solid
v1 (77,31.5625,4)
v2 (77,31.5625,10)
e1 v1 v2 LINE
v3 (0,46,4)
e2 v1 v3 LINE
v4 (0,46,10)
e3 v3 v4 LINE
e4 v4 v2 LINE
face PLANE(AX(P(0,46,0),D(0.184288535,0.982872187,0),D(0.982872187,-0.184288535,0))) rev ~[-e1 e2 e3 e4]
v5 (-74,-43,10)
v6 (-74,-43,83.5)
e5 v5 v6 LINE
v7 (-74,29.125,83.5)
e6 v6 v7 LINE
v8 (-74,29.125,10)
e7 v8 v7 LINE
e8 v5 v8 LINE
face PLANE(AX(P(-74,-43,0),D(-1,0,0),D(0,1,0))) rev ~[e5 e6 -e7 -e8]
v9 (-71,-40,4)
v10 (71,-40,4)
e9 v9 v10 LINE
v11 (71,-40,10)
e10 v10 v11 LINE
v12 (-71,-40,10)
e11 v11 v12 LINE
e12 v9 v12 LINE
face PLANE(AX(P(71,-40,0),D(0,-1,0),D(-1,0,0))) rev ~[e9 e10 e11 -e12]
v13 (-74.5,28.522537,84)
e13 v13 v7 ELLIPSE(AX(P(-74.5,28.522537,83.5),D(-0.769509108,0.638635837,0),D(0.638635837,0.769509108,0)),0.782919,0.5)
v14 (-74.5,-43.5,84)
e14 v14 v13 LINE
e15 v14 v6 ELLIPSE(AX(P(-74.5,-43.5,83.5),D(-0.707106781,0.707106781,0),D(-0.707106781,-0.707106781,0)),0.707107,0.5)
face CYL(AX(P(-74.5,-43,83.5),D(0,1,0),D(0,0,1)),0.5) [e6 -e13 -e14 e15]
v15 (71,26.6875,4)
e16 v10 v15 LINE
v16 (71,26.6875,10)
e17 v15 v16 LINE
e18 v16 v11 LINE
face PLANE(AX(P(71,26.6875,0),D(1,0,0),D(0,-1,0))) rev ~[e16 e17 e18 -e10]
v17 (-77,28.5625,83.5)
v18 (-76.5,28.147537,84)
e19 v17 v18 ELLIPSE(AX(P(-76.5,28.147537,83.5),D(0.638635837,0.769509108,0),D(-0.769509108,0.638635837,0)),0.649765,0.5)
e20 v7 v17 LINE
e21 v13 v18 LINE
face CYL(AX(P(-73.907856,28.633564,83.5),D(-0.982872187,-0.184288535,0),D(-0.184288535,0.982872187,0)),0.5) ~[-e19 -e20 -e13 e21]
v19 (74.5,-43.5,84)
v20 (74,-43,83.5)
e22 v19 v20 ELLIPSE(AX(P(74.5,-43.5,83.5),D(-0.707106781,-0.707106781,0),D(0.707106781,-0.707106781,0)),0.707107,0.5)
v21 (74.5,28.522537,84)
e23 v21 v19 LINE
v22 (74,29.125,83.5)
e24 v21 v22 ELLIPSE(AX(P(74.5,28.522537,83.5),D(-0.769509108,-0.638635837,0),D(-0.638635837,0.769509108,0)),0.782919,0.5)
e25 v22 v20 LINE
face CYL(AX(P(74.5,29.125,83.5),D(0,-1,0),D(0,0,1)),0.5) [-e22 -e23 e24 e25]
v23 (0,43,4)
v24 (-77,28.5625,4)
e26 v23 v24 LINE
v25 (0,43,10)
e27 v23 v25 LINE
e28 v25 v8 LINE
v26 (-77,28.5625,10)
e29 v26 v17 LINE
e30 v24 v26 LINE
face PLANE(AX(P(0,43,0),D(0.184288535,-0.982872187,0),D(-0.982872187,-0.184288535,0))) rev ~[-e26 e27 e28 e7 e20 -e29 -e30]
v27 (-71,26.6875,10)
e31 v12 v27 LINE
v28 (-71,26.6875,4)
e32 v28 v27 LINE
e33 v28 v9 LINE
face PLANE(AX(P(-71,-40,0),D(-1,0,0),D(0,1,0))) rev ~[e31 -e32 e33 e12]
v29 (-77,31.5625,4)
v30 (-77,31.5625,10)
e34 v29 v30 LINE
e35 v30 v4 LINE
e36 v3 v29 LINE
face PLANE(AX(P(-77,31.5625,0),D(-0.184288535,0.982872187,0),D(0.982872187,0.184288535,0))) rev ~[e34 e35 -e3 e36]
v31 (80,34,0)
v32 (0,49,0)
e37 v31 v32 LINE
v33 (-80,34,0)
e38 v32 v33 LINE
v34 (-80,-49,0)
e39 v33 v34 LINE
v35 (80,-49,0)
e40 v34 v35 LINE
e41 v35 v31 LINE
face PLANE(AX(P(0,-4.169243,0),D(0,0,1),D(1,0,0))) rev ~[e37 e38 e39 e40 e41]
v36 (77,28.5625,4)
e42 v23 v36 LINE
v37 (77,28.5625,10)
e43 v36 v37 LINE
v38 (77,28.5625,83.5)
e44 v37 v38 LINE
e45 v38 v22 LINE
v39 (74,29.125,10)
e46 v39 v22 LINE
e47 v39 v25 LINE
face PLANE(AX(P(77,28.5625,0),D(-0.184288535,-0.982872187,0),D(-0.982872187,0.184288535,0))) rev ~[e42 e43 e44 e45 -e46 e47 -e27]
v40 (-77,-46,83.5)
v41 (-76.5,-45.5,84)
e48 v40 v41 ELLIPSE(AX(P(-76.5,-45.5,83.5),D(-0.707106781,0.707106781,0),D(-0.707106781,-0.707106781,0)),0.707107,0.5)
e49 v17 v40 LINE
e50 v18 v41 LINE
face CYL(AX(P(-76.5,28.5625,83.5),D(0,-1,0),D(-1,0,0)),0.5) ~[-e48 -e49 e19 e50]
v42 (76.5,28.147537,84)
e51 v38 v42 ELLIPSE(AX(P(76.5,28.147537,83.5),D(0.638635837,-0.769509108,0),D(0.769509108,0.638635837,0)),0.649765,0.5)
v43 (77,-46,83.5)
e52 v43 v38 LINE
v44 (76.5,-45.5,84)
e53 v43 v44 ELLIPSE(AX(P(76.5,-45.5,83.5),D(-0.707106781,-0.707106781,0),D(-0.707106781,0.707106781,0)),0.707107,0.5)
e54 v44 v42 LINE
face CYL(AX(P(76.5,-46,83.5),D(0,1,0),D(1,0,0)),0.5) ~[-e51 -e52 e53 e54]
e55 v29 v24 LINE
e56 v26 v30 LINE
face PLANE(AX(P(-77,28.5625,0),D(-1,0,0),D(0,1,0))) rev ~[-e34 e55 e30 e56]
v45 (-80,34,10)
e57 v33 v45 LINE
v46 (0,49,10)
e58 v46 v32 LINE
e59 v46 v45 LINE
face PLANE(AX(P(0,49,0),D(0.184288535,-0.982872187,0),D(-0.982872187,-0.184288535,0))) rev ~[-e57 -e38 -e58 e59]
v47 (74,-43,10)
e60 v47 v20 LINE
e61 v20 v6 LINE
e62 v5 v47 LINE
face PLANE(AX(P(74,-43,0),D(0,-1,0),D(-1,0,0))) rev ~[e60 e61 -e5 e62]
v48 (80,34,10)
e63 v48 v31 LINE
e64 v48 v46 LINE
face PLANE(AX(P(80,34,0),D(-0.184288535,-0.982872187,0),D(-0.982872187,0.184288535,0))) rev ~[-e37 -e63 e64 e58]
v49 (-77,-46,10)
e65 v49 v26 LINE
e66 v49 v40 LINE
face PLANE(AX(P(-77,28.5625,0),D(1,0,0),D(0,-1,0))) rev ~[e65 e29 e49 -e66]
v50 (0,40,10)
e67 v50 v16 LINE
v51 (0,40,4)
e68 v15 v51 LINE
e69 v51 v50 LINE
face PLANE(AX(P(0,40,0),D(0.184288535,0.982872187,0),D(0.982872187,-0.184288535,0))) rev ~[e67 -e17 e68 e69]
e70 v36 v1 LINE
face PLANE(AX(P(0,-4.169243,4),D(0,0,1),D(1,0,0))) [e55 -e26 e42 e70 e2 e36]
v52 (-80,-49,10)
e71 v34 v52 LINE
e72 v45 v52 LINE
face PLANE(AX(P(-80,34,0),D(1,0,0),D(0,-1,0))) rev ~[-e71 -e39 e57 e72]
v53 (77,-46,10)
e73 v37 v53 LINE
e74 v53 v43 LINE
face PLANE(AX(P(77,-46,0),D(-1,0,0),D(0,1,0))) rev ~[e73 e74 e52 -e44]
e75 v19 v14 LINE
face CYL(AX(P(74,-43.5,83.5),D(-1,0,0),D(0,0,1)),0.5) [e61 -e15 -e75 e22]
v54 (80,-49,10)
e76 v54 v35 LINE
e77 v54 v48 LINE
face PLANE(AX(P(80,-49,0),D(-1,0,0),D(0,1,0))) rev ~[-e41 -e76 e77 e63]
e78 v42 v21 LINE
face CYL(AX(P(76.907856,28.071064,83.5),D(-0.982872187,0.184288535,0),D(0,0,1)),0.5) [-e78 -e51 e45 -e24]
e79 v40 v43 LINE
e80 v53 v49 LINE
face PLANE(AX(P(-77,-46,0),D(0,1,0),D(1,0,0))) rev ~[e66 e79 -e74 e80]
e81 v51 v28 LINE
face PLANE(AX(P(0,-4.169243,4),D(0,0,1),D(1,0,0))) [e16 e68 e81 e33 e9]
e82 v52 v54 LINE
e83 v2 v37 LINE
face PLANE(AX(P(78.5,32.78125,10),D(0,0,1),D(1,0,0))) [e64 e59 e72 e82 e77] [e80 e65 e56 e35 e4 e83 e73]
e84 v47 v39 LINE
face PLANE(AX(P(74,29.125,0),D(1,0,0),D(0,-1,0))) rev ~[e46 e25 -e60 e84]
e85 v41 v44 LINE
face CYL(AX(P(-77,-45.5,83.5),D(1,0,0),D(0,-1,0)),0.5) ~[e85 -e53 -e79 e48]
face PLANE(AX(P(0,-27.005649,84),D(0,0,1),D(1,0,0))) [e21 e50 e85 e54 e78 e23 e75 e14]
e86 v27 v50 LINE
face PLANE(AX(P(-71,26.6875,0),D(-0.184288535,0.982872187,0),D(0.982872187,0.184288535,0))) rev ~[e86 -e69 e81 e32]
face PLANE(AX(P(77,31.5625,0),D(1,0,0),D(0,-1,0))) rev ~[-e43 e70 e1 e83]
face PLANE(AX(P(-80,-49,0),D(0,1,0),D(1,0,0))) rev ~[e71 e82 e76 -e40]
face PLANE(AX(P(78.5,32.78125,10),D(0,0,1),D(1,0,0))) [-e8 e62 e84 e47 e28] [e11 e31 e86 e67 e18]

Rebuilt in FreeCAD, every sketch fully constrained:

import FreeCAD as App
import Part
import Sketcher
from FreeCAD import Vector
Q = App.Units.Quantity


def edges_at(feature, points):
    """Names of the edges that pass closest to the given points."""
    edges = feature.Shape.Edges
    near = lambda p: min(range(len(edges)), key=lambda i: edges[i].distToShape(Part.Vertex(*p))[0])
    return sorted({f"Edge{near(p) + 1}" for p in points})


def add_polygon(sketch, points):
    """Adds a closed chain of lines whose ends are joined by coincident constraints."""
    first, n = sketch.GeometryCount, len(points)
    for a, b in zip(points, points[1:] + points[:1]):
        sketch.addGeometry(Part.LineSegment(App.Vector(*a, 0), App.Vector(*b, 0)), False)
    for i in range(n):
        sketch.addConstraint(Sketcher.Constraint("Coincident", first + i, 2, first + (i + 1) % n, 1))

doc = App.newDocument("Part")
body = doc.addObject("PartDesign::Body", "Body")

sketch1 = body.newObject("Sketcher::SketchObject", "Sketch")
sketch1.AttachmentSupport = (doc.getObject("XY_Plane"), [""])
sketch1.MapMode = "FlatFace"
add_polygon(sketch1, [(0, 49), (-80, 34), (-80, -49), (80, -49), (80, 34)])
sketch1.addConstraint([
    Sketcher.Constraint("Vertical", 1),
    Sketcher.Constraint("Horizontal", 2),
    Sketcher.Constraint("Vertical", 3),
    Sketcher.Constraint("Symmetric", 0, 2, 3, 2, -2),
    Sketcher.Constraint("PointOnObject", 4, 2, -2),
    Sketcher.Constraint("DistanceX", 2, 1, 2, 2, Q("160 mm")),
    Sketcher.Constraint("DistanceY", 1, 2, 1, 1, Q("83 mm")),
    Sketcher.Constraint("DistanceY", -1, 1, 0, 2, Q("34 mm")),
    Sketcher.Constraint("DistanceY", -1, 1, 4, 2, Q("49 mm")),
])
pad1 = body.newObject("PartDesign::Pad", "Pad")
pad1.Profile = sketch1
pad1.Length = 4

sketch2 = body.newObject("Sketcher::SketchObject", "Sketch001")
sketch2.AttachmentSupport = (doc.getObject("XY_Plane"), [""])
sketch2.MapMode = "FlatFace"
add_polygon(sketch2, [(80, 34), (0, 49), (-80, 34), (-80, -49), (80, -49)])
add_polygon(sketch2, [(77, 28.6), (0, 43), (-77, 28.6), (-77, 31.6), (0, 46), (77, 31.6)])
add_polygon(sketch2, [(-71, -40), (-71, 26.7), (0, 40), (71, 26.7), (71, -40)])
add_polygon(sketch2, [(-77, 25.6), (-74, 26.1), (-74, -43), (74, -43), (74, 26.1), (77, 25.6), (77, -46), (-77, -46)])
sketch2.addConstraint([
    Sketcher.Constraint("Vertical", 2),
    Sketcher.Constraint("Horizontal", 3),
    Sketcher.Constraint("Vertical", 4),
    Sketcher.Constraint("Vertical", 7),
    Sketcher.Constraint("Vertical", 10),
    Sketcher.Constraint("Vertical", 11),
    Sketcher.Constraint("Vertical", 14),
    Sketcher.Constraint("Horizontal", 15),
    Sketcher.Constraint("Vertical", 17),
    Sketcher.Constraint("Horizontal", 18),
    Sketcher.Constraint("Vertical", 19),
    Sketcher.Constraint("Vertical", 21),
    Sketcher.Constraint("Horizontal", 22),
    Sketcher.Constraint("Vertical", 23),
    Sketcher.Constraint("Symmetric", 1, 2, 4, 2, -2),
    Sketcher.Constraint("Symmetric", 7, 2, 9, 2, -2),
    Sketcher.Constraint("Symmetric", 11, 2, 13, 2, -2),
    Sketcher.Constraint("Symmetric", 16, 2, 19, 2, -2),
    Sketcher.Constraint("Symmetric", 20, 2, 23, 2, -2),
    Sketcher.Constraint("PointOnObject", 0, 2, -2),
    Sketcher.Constraint("PointOnObject", 5, 2, -2),
    Sketcher.Constraint("PointOnObject", 8, 2, -2),
    Sketcher.Constraint("PointOnObject", 12, 2, -2),
    Sketcher.Constraint("Parallel", 0, 5),
    Sketcher.Constraint("Parallel", 1, 6),
    Sketcher.Constraint("Parallel", 6, 8),
    Sketcher.Constraint("Parallel", 8, 12),
    Sketcher.Constraint("Parallel", 12, 16),
    Sketcher.Constraint("Vertical", 10, 2, 20, 2),
    Sketcher.Constraint("DistanceX", 3, 1, 3, 2, Q("160 mm")),
    Sketcher.Constraint("DistanceX", 15, 2, 15, 1, Q("142 mm")),
    Sketcher.Constraint("DistanceX", 18, 1, 18, 2, Q("148 mm")),
    Sketcher.Constraint("DistanceX", 22, 2, 22, 1, Q("154 mm")),
    Sketcher.Constraint("DistanceY", 2, 2, 2, 1, Q("83 mm")),
    Sketcher.Constraint("DistanceY", 7, 1, 7, 2, Q("3 mm")),
    Sketcher.Constraint("DistanceY", -1, 1, 0, 2, Q("49 mm")),
    Sketcher.Constraint("DistanceY", -1, 1, 1, 2, Q("34 mm")),
    Sketcher.Constraint("DistanceY", -1, 1, 5, 2, Q("43 mm")),
    Sketcher.Constraint("DistanceY", -1, 1, 12, 2, Q("40 mm")),
    Sketcher.Constraint("DistanceY", 14, 2, -1, 1, Q("40 mm")),
    Sketcher.Constraint("DistanceY", 17, 2, -1, 1, Q("43 mm")),
    Sketcher.Constraint("DistanceY", 21, 2, -1, 1, Q("46 mm")),
    Sketcher.Constraint("DistanceY", 20, 2, 10, 2, Q("3 mm")),
])
pad2 = body.newObject("PartDesign::Pad", "Pad001")
pad2.Profile = sketch2
pad2.Length = 10

sketch3 = body.newObject("Sketcher::SketchObject", "Sketch002")
sketch3.AttachmentSupport = (doc.getObject("XY_Plane"), [""])
sketch3.MapMode = "FlatFace"
add_polygon(sketch3, [(77, -46), (77, 28.6), (74, 29.1), (74, -43), (-74, -43), (-74, 29.1), (-77, 28.6), (-77, -46)])
sketch3.addConstraint([
    Sketcher.Constraint("Vertical", 0),
    Sketcher.Constraint("Vertical", 2),
    Sketcher.Constraint("Horizontal", 3),
    Sketcher.Constraint("Vertical", 4),
    Sketcher.Constraint("Vertical", 6),
    Sketcher.Constraint("Horizontal", 7),
    Sketcher.Constraint("Symmetric", 1, 2, 4, 2, -2),
    Sketcher.Constraint("Symmetric", 0, 2, 5, 2, -2),
    Sketcher.Constraint("DistanceX", 3, 2, 3, 1, Q("148 mm")),
    Sketcher.Constraint("DistanceX", 7, 1, 7, 2, Q("154 mm")),
    Sketcher.Constraint("DistanceY", 2, 2, -1, 1, Q("43 mm")),
    Sketcher.Constraint("DistanceY", 6, 2, -1, 1, Q("46 mm")),
    Sketcher.Constraint("DistanceY", 2, 2, 2, 1, Q("72.125 mm")),
    Sketcher.Constraint("DistanceY", 0, 1, 0, 2, Q("74.5625 mm")),
])
pad3 = body.newObject("PartDesign::Pad", "Pad002")
pad3.Profile = sketch3
pad3.Length = 84
doc.recompute()

fillet = body.newObject("PartDesign::Fillet", "Fillet")
fillet.Base = (pad3, edges_at(pad3, [
    (77, -8.719, 84),
    (75.5, 28.844, 84),
    (74, -6.938, 84),
    (0, -43, 84),
    (-74, -6.938, 84),
    (-75.5, 28.844, 84),
    (-77, -8.719, 84),
    (0, -46, 84),
]))
fillet.Radius = 0.5

doc.recompute()
